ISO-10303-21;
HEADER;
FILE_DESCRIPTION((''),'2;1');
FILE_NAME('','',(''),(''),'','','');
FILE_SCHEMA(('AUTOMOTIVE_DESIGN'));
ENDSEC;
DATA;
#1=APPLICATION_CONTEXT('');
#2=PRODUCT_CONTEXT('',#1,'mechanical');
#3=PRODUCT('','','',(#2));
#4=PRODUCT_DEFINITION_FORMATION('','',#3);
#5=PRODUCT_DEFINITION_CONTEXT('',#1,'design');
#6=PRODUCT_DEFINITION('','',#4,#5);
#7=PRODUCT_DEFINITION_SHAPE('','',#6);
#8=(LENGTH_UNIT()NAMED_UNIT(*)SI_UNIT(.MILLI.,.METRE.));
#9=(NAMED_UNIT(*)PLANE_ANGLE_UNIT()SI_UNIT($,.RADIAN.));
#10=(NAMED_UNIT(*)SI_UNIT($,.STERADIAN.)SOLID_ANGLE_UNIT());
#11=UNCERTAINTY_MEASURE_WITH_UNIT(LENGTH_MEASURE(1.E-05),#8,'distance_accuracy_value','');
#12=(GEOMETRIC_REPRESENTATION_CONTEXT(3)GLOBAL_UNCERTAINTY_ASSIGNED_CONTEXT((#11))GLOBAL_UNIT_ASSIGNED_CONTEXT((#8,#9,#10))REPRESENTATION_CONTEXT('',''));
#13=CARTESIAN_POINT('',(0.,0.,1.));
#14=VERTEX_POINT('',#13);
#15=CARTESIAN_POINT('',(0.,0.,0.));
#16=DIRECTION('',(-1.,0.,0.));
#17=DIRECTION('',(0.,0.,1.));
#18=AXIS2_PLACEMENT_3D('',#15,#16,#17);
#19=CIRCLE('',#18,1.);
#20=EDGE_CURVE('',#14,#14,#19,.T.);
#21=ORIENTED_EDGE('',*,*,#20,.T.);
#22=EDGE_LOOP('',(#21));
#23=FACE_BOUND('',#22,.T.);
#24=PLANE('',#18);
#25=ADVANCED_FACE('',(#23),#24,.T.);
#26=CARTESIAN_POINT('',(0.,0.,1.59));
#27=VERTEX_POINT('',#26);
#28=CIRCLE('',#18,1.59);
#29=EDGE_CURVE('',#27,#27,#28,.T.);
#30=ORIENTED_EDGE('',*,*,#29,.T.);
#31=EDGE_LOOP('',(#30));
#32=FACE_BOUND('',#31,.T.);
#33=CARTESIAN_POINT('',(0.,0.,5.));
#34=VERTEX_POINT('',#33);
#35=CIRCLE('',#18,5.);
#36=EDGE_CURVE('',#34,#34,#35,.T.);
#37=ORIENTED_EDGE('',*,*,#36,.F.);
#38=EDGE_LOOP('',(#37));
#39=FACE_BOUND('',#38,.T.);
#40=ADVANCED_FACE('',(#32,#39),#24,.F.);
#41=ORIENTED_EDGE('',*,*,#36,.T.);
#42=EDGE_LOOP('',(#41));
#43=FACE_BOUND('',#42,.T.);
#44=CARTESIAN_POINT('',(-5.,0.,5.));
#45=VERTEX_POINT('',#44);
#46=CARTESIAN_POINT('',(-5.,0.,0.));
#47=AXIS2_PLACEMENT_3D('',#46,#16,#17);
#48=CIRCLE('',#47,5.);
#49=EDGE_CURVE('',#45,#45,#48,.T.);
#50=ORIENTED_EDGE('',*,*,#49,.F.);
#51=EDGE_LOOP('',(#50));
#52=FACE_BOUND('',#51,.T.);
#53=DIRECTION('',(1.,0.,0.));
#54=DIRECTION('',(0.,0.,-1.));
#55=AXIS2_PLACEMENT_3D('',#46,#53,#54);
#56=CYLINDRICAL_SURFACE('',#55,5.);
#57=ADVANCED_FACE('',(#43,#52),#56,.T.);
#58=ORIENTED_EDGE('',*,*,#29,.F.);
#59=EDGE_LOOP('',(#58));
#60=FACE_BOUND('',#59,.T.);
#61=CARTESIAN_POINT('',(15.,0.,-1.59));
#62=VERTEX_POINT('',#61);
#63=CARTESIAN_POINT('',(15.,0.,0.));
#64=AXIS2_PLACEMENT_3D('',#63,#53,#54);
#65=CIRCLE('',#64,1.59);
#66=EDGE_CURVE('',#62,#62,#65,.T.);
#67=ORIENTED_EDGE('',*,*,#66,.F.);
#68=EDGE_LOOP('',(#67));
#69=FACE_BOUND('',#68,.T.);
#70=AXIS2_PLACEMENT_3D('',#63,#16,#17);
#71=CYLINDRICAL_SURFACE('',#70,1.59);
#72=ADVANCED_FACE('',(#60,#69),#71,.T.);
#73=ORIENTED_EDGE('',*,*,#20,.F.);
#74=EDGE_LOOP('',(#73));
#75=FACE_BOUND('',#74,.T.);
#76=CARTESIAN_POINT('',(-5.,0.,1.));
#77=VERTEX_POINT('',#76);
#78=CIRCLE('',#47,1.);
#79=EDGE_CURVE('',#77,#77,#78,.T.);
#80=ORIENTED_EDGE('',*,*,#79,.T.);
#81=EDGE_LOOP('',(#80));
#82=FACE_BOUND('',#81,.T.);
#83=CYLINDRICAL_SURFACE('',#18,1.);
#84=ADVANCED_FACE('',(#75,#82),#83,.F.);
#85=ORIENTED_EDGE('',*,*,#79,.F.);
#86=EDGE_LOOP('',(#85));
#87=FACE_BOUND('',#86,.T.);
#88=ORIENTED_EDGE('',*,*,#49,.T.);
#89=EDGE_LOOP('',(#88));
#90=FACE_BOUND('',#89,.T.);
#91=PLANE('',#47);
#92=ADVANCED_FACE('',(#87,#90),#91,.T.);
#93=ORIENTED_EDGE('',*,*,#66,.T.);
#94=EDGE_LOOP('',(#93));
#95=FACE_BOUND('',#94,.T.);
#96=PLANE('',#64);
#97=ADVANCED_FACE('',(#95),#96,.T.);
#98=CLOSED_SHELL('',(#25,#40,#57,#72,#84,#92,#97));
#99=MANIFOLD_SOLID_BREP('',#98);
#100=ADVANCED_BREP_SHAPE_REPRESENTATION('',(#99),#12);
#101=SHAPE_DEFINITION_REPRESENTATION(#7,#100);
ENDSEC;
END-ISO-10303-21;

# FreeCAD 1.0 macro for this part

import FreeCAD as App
import Part
import Sketcher
Q = App.Units.Quantity

doc = App.newDocument("Part")
body = doc.addObject("PartDesign::Body", "Body")

sketch1 = body.newObject("Sketcher::SketchObject", "Sketch")
sketch1.AttachmentSupport = (doc.getObject("YZ_Plane"), [""])
sketch1.MapMode = "FlatFace"
sketch1.addGeometry(Part.Circle(App.Vector(0, 0, 0), App.Vector(0, 0, 1), 1.6), False)
sketch1.addConstraint(Sketcher.Constraint("Coincident", 0, 3, -1, 1))
sketch1.addConstraint(Sketcher.Constraint("Diameter", 0, Q("3.18 mm")))
pad1 = body.newObject("PartDesign::Pad", "Pad")
pad1.Profile = sketch1
pad1.Length = 15

sketch2 = body.newObject("Sketcher::SketchObject", "Sketch001")
sketch2.AttachmentSupport = (doc.getObject("YZ_Plane"), [""])
sketch2.MapMode = "FlatFace"
sketch2.addGeometry(Part.Circle(App.Vector(0, 0, 0), App.Vector(0, 0, 1), 5), False)
sketch2.addConstraint(Sketcher.Constraint("Coincident", 0, 3, -1, 1))
sketch2.addConstraint(Sketcher.Constraint("Diameter", 0, Q("10 mm")))
pad2 = body.newObject("PartDesign::Pad", "Pad001")
pad2.Profile = sketch2
pad2.Length = 5
pad2.Reversed = True

sketch3 = body.newObject("Sketcher::SketchObject", "Sketch002")
sketch3.AttachmentSupport = (doc.getObject("YZ_Plane"), [""])
sketch3.MapMode = "FlatFace"
sketch3.AttachmentOffset = App.Placement(App.Vector(0, 0, -5), App.Rotation())
sketch3.addGeometry(Part.Circle(App.Vector(0, 0, 0), App.Vector(0, 0, 1), 1), False)
sketch3.addConstraint(Sketcher.Constraint("Coincident", 0, 3, -1, 1))
sketch3.addConstraint(Sketcher.Constraint("Diameter", 0, Q("2 mm")))
pocket1 = body.newObject("PartDesign::Pocket", "Pocket")
pocket1.Profile = sketch3
pocket1.Length = 5
pocket1.Reversed = True

doc.recompute()
